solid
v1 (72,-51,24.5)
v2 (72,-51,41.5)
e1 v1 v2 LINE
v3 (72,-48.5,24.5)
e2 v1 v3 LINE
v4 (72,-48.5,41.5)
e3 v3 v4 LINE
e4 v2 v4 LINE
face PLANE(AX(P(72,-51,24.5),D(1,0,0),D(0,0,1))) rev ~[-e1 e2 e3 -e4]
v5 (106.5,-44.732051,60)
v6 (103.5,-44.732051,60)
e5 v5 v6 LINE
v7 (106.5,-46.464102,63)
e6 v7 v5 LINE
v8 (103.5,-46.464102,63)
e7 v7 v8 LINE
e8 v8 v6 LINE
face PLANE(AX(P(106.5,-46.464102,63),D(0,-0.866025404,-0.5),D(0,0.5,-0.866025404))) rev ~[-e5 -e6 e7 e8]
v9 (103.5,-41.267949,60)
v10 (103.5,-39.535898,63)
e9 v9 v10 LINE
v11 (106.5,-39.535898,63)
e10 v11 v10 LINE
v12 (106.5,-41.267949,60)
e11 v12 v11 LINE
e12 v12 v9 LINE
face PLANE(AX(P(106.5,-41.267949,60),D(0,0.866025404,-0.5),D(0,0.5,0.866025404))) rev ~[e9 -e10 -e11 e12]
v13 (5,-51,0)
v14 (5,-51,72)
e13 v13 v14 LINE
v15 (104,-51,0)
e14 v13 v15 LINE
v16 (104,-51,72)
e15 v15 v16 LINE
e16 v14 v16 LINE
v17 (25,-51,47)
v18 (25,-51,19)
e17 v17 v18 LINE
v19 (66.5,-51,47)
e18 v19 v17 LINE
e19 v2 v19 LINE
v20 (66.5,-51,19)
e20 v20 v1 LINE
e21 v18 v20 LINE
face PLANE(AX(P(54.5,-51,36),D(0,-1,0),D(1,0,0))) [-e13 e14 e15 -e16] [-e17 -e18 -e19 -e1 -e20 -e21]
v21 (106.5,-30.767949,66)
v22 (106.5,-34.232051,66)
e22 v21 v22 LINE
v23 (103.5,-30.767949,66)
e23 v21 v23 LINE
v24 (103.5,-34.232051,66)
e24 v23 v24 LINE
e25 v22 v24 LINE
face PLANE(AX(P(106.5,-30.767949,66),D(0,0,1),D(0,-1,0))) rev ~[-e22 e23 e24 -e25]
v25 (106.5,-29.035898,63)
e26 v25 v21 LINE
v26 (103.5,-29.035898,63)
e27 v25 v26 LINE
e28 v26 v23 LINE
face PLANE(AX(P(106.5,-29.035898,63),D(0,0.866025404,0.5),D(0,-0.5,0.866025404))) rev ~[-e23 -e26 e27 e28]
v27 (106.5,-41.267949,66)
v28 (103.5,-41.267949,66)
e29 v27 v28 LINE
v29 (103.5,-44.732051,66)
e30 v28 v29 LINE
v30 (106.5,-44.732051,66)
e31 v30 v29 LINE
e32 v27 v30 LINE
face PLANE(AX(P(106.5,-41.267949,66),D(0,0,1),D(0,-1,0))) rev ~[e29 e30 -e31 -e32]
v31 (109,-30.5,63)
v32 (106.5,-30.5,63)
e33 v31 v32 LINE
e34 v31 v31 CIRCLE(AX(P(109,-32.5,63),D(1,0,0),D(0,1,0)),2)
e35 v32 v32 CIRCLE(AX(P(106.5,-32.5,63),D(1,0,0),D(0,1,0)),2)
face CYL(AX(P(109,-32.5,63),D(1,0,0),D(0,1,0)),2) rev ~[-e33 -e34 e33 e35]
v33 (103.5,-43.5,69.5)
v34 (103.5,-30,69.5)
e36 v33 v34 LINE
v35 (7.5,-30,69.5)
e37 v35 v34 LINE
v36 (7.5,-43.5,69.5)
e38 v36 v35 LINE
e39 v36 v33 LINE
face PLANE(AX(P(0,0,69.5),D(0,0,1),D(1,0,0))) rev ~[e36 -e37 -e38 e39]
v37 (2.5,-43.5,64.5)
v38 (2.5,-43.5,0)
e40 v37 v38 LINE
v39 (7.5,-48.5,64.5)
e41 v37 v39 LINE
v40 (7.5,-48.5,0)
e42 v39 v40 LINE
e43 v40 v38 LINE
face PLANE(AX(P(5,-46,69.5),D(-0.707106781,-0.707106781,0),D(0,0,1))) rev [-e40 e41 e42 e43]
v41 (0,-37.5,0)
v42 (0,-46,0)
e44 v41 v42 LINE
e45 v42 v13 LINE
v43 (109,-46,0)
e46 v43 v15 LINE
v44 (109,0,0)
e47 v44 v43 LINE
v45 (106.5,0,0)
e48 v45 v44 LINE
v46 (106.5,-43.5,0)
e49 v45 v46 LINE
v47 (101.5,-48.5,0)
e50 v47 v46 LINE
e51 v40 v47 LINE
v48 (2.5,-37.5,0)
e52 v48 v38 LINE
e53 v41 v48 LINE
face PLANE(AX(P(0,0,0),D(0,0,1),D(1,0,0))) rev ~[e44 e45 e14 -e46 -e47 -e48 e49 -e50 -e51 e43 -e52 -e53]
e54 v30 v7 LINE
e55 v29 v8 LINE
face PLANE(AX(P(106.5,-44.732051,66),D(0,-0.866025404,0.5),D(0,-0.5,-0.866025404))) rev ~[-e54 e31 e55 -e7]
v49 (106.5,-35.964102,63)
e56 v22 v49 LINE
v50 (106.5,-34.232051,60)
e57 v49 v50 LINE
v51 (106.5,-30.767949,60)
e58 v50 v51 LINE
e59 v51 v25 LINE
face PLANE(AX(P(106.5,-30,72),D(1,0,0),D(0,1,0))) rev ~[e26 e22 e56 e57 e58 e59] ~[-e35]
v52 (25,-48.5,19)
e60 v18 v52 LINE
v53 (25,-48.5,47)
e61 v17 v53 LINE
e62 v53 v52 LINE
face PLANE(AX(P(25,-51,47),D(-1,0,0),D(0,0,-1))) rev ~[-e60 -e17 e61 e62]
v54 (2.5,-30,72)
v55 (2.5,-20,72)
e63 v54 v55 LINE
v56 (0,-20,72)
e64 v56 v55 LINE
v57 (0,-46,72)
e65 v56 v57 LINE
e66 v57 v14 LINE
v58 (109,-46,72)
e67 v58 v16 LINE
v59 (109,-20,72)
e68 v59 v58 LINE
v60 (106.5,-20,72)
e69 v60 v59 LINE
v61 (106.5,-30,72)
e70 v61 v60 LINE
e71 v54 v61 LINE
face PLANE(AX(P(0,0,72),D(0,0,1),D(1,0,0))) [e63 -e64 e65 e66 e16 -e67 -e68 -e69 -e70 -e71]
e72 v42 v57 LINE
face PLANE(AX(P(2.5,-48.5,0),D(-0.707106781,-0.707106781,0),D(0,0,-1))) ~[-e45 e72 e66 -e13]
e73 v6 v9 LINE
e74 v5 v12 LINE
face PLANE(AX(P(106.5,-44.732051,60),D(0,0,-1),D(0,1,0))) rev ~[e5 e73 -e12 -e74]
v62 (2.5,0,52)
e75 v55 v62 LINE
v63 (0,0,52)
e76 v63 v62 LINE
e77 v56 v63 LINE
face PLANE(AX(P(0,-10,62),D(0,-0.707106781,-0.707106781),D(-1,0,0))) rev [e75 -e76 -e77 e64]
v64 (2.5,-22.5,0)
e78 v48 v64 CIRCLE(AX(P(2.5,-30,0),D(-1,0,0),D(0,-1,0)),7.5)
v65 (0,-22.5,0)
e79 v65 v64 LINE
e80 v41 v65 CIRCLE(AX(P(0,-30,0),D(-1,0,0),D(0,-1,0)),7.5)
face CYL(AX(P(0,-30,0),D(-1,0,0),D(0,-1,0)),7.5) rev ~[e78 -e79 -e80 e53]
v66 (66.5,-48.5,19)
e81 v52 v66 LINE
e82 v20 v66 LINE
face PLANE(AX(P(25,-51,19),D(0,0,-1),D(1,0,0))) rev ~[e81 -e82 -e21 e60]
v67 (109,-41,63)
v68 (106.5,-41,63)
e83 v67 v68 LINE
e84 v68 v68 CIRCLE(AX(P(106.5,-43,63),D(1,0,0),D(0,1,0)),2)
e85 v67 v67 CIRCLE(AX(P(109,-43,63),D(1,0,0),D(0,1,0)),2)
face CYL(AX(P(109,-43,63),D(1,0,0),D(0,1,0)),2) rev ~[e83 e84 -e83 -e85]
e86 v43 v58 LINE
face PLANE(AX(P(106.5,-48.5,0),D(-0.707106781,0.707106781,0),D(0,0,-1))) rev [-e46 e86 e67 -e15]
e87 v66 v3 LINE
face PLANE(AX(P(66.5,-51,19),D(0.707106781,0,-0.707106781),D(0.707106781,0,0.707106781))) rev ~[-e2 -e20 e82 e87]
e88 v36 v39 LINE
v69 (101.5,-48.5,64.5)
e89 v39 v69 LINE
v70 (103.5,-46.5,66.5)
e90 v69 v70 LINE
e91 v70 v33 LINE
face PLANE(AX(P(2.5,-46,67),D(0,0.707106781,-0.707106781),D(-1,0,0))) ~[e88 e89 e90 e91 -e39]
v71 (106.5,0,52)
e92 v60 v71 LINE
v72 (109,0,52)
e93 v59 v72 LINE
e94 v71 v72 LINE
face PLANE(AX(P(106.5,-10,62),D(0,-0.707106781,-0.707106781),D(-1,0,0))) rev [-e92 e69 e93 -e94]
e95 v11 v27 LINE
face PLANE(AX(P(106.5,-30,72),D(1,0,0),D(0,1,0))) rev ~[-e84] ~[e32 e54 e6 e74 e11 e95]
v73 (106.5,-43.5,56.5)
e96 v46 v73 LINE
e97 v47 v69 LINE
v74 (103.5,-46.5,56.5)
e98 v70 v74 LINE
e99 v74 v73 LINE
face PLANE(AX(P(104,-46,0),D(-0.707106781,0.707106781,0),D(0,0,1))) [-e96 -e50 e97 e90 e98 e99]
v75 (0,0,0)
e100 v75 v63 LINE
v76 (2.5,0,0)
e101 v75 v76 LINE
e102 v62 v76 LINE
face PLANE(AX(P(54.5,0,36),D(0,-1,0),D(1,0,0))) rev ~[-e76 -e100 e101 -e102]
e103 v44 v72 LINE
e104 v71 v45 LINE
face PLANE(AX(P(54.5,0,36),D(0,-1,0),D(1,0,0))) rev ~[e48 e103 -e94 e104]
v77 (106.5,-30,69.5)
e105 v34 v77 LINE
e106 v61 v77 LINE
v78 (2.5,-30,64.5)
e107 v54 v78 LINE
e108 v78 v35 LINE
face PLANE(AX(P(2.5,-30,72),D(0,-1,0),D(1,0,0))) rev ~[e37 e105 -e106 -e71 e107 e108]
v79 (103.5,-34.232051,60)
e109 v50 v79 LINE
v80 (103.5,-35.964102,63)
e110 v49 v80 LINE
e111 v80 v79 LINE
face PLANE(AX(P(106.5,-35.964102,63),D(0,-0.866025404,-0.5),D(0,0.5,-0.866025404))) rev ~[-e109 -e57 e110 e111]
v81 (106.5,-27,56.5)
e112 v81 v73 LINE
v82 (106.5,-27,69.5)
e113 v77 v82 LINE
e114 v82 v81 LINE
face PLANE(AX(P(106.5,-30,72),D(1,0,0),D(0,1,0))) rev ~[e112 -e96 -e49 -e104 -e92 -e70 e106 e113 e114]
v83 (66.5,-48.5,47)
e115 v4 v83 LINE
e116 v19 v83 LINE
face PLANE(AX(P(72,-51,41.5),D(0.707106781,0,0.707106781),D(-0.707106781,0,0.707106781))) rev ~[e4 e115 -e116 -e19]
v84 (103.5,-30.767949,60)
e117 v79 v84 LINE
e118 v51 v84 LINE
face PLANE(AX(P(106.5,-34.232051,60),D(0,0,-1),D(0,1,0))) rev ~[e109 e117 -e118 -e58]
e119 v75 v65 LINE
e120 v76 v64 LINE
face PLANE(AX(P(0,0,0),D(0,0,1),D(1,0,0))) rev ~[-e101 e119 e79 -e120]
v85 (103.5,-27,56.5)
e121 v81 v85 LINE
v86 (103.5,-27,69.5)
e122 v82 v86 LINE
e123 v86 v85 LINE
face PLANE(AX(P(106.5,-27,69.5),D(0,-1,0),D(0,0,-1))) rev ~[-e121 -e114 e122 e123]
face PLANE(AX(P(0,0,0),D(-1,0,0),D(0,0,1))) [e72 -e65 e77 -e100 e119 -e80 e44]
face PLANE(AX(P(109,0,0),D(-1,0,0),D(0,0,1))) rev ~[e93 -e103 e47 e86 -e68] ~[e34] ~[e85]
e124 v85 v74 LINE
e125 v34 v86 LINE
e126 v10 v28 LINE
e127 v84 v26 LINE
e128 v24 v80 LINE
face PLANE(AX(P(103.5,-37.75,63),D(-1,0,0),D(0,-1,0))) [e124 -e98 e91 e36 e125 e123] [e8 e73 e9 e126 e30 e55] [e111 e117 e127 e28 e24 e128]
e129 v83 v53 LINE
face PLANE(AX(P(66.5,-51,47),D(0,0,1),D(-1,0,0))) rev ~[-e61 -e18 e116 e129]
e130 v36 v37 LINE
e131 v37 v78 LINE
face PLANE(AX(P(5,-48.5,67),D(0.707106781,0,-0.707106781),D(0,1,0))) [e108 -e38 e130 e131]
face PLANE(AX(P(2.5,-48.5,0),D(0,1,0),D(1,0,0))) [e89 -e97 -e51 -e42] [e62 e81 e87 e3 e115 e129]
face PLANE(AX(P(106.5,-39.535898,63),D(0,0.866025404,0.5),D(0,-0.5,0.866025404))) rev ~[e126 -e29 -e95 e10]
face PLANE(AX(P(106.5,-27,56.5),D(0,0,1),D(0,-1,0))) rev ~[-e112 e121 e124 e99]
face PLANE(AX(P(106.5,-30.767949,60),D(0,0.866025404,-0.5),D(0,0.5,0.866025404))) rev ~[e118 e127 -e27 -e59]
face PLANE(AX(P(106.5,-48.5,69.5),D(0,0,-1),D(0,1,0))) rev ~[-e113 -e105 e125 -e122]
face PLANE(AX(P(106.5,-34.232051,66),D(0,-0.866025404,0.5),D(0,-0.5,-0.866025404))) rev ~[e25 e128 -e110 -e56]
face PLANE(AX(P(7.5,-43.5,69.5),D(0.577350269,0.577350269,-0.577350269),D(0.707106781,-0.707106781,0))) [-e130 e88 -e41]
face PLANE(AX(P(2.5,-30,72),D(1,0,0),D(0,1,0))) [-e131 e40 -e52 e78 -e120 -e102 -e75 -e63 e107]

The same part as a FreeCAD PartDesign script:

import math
import FreeCAD as App
import Part
import Sketcher

V = App.Vector
Q = App.Units.Quantity


def edges_at(feature, points):
    """Names of the edges that pass closest to the given points."""
    edges = feature.Shape.Edges
    near = lambda p: min(range(len(edges)), key=lambda i: edges[i].distToShape(Part.Vertex(*p))[0])
    return sorted({f"Edge{near(p) + 1}" for p in points})


def faces_at(feature, points):
    """Names of the faces that lie closest to the given points."""
    faces = feature.Shape.Faces
    near = lambda p: min(range(len(faces)), key=lambda i: faces[i].distToShape(Part.Vertex(*p))[0])
    return sorted({f"Face{near(p) + 1}" for p in points})


def add_polygon(sketch, points):
    """Adds a closed chain of lines whose ends are joined by coincident constraints."""
    first, n = sketch.GeometryCount, len(points)
    for a, b in zip(points, points[1:] + points[:1]):
        sketch.addGeometry(Part.LineSegment(App.Vector(*a, 0), App.Vector(*b, 0)), False)
    for i in range(n):
        sketch.addConstraint(Sketcher.Constraint("Coincident", first + i, 2, first + (i + 1) % n, 1))

doc = App.newDocument("Part")
body = doc.addObject("PartDesign::Body", "Body")

sketch1 = body.newObject("Sketcher::SketchObject", "Sketch")
sketch1.AttachmentSupport = (doc.getObject("XZ_Plane"), [""])
sketch1.MapMode = "FlatFace"
add_polygon(sketch1, [(0, 72), (0, 0), (109, 0), (109, 72)])
sketch1.addConstraint(Sketcher.Constraint("Vertical", 0))
sketch1.addConstraint(Sketcher.Constraint("Horizontal", 1))
sketch1.addConstraint(Sketcher.Constraint("Vertical", 2))
sketch1.addConstraint(Sketcher.Constraint("Horizontal", 3))
sketch1.addConstraint(Sketcher.Constraint("Coincident", 0, 2, -1, 1))
sketch1.addConstraint(Sketcher.Constraint("DistanceX", 1, 1, 1, 2, 109.0))
sketch1.addConstraint(Sketcher.Constraint("DistanceY", 0, 2, 0, 1, 72.0))
pad1 = body.newObject("PartDesign::Pad", "Pad")
pad1.Profile = sketch1
pad1.Length = 51
doc.recompute()

thickness = body.newObject("PartDesign::Thickness", "Thickness")
thickness.Base = (pad1, faces_at(pad1, [(54.5, 0, 36)]))
thickness.Value = 2.5
thickness.Reversed = True
thickness.Join = "Arc"

sketch2 = body.newObject("Sketcher::SketchObject", "Sketch001")
sketch2.AttachmentSupport = (doc.getObject("XY_Plane"), [""])
sketch2.MapMode = "FlatFace"
sketch2.AttachmentOffset = App.Placement(V(0, 0, 72), App.Rotation())
add_polygon(sketch2, [(2, 0), (2, -30), (106, -30), (106, 0)])
sketch2.addConstraint(Sketcher.Constraint("Vertical", 0))
sketch2.addConstraint(Sketcher.Constraint("Horizontal", 1))
sketch2.addConstraint(Sketcher.Constraint("Vertical", 2))
sketch2.addConstraint(Sketcher.Constraint("Horizontal", 3))
sketch2.addConstraint(Sketcher.Constraint("PointOnObject", 2, 2, -1))
sketch2.addConstraint(Sketcher.Constraint("DistanceX", 1, 1, 1, 2, 104.0))
sketch2.addConstraint(Sketcher.Constraint("DistanceY", 0, 2, 0, 1, 30.0))
sketch2.addConstraint(Sketcher.Constraint("DistanceX", -1, 1, 0, 2, 2.5))
pocket1 = body.newObject("PartDesign::Pocket", "Pocket")
pocket1.Profile = sketch2
pocket1.Length = 2.5

sketch3 = body.newObject("Sketcher::SketchObject", "Sketch002")
sketch3.AttachmentSupport = (doc.getObject("YZ_Plane"), [""])
sketch3.MapMode = "FlatFace"
sketch3.AttachmentOffset = App.Placement(V(0, 0, 109), App.Rotation())
sketch3.addGeometry(Part.Circle(V(-43, 63, 0), V(0, 0, 1), 2), False)
sketch3.addGeometry(Part.Circle(V(-32.5, 63, 0), V(0, 0, 1), 2), False)
sketch3.addConstraint(Sketcher.Constraint("Equal", 0, 1))
sketch3.addConstraint(Sketcher.Constraint("Horizontal", 0, 3, 1, 3))
sketch3.addConstraint(Sketcher.Constraint("Diameter", 0, 4.0))
sketch3.addConstraint(Sketcher.Constraint("DistanceX", 0, 3, -1, 1, 43.0))
sketch3.addConstraint(Sketcher.Constraint("DistanceY", -1, 1, 0, 3, 63.0))
sketch3.addConstraint(Sketcher.Constraint("DistanceX", 1, 3, -1, 1, 32.5))
pocket2 = body.newObject("PartDesign::Pocket", "Pocket001")
pocket2.Profile = sketch3
pocket2.Length = 2.5
doc.recompute()

chamfer = body.newObject("PartDesign::Chamfer", "Chamfer")
chamfer.Base = (pocket2, edges_at(pocket2, [(107.75, 0, 72), (1.25, 0, 72)]))
chamfer.Size = 20

sketch4 = body.newObject("Sketcher::SketchObject", "Sketch003")
sketch4.AttachmentSupport = (doc.getObject("XY_Plane"), [""])
sketch4.MapMode = "FlatFace"
add_polygon(sketch4, [(2, -48), (2, 0), (106, 0), (106, -48)])
sketch4.addConstraint(Sketcher.Constraint("Vertical", 0))
sketch4.addConstraint(Sketcher.Constraint("Horizontal", 1))
sketch4.addConstraint(Sketcher.Constraint("Vertical", 2))
sketch4.addConstraint(Sketcher.Constraint("Horizontal", 3))
sketch4.addConstraint(Sketcher.Constraint("PointOnObject", 0, 2, -1))
sketch4.addConstraint(Sketcher.Constraint("DistanceX", 1, 1, 1, 2, 104.0))
sketch4.addConstraint(Sketcher.Constraint("DistanceY", 0, 1, 0, 2, 48.5))
sketch4.addConstraint(Sketcher.Constraint("DistanceX", -1, 1, 0, 2, 2.5))
pocket3 = body.newObject("PartDesign::Pocket", "Pocket002")
pocket3.Profile = sketch4
pocket3.Length = 2.5
pocket3.Reversed = True

sketch5 = body.newObject("Sketcher::SketchObject", "Sketch004")
sketch5.AttachmentSupport = (doc.getObject("YZ_Plane"), [""])
sketch5.MapMode = "FlatFace"
sketch5.addGeometry(Part.LineSegment(V(-22, 0, 0), V(-38, 0, 0)), False)
sketch5.addGeometry(Part.ArcOfCircle(Part.Circle(V(-30, 0, 0), V(0, 0, 1), 8), math.radians(0), math.radians(180)), False)
sketch5.addConstraint(Sketcher.Constraint("Coincident", 0, 1, 1, 1))
sketch5.addConstraint(Sketcher.Constraint("Coincident", 1, 2, 0, 2))
sketch5.addConstraint(Sketcher.Constraint("Horizontal", 0))
sketch5.addConstraint(Sketcher.Constraint("PointOnObject", 1, 3, -1))
sketch5.addConstraint(Sketcher.Constraint("PointOnObject", 0, 1, -1))
sketch5.addConstraint(Sketcher.Constraint("Radius", 1, 7.5))
sketch5.addConstraint(Sketcher.Constraint("DistanceX", 1, 3, -1, 1, 30.0))
pocket4 = body.newObject("PartDesign::Pocket", "Pocket003")
pocket4.Profile = sketch5
pocket4.Length = 2.5
pocket4.Reversed = True

sketch6 = body.newObject("Sketcher::SketchObject", "Sketch005")
sketch6.AttachmentSupport = (doc.getObject("YZ_Plane"), [""])
sketch6.MapMode = "FlatFace"
sketch6.AttachmentOffset = App.Placement(V(0, 0, 106.5), App.Rotation())
add_polygon(sketch6, [(-48.5, 56.5), (-48.5, 69.5), (-27, 69.5), (-27, 56.5)])
add_polygon(sketch6, [(-30.8, 60), (-29, 63), (-30.8, 66), (-34.2, 66), (-36, 63), (-34.2, 60)])
add_polygon(sketch6, [(-41.3, 60), (-39.5, 63), (-41.3, 66), (-44.7, 66), (-46.5, 63), (-44.7, 60)])
sketch6.addConstraint(Sketcher.Constraint("Vertical", 0))
sketch6.addConstraint(Sketcher.Constraint("Horizontal", 1))
sketch6.addConstraint(Sketcher.Constraint("Vertical", 2))
sketch6.addConstraint(Sketcher.Constraint("Horizontal", 3))
sketch6.addConstraint(Sketcher.Constraint("Horizontal", 6))
sketch6.addConstraint(Sketcher.Constraint("Horizontal", 9))
sketch6.addConstraint(Sketcher.Constraint("Horizontal", 12))
sketch6.addConstraint(Sketcher.Constraint("Horizontal", 15))
sketch6.addConstraint(Sketcher.Constraint("Parallel", 4, 7))
sketch6.addConstraint(Sketcher.Constraint("Parallel", 5, 8))
sketch6.addConstraint(Sketcher.Constraint("Parallel", 7, 10))
sketch6.addConstraint(Sketcher.Constraint("Parallel", 8, 11))
sketch6.addConstraint(Sketcher.Constraint("Parallel", 10, 13))
sketch6.addConstraint(Sketcher.Constraint("Parallel", 11, 14))
sketch6.addConstraint(Sketcher.Constraint("Horizontal", 4, 2, 7, 2))
sketch6.addConstraint(Sketcher.Constraint("Horizontal", 7, 2, 10, 2))
sketch6.addConstraint(Sketcher.Constraint("Horizontal", 6, 2, 11, 2))
sketch6.addConstraint(Sketcher.Constraint("Horizontal", 10, 2, 13, 2))
sketch6.addConstraint(Sketcher.Constraint("Horizontal", 9, 2, 14, 2))
sketch6.addConstraint(Sketcher.Constraint("Vertical", 6, 2, 8, 2))
sketch6.addConstraint(Sketcher.Constraint("Vertical", 5, 2, 9, 2))
sketch6.addConstraint(Sketcher.Constraint("Equal", 9, 12))
sketch6.addConstraint(Sketcher.Constraint("DistanceY", 0, 1, 0, 2, 13.0))
sketch6.addConstraint(Sketcher.Constraint("Angle", 4, Q("60 deg")))
sketch6.addConstraint(Sketcher.Constraint("DistanceX", 1, 1, 1, 2, 21.5))
sketch6.addConstraint(Sketcher.Constraint("DistanceX", 1, 2, -1, 1, 27.0))
sketch6.addConstraint(Sketcher.Constraint("DistanceY", -1, 1, 4, 2, 63.0))
sketch6.addConstraint(Sketcher.Constraint("DistanceY", -1, 1, 5, 2, 66.0))
sketch6.addConstraint(Sketcher.Constraint("DistanceY", -1, 1, 0, 2, 69.5))
sketch6.addConstraint(Sketcher.Constraint("DistanceX", 6, 2, 6, 1, 3.464102))
sketch6.addConstraint(Sketcher.Constraint("DistanceX", 4, 2, -1, 1, 29.035898))
sketch6.addConstraint(Sketcher.Constraint("DistanceX", 10, 2, -1, 1, 39.535898))
pad2 = body.newObject("PartDesign::Pad", "Pad001")
pad2.Profile = sketch6
pad2.Length = 3
pad2.Reversed = True

sketch7 = body.newObject("Sketcher::SketchObject", "Sketch006")
sketch7.AttachmentSupport = (doc.getObject("XZ_Plane"), [""])
sketch7.MapMode = "FlatFace"
sketch7.AttachmentOffset = App.Placement(V(0, 0, 51), App.Rotation())
add_polygon(sketch7, [(66, 47), (25, 47), (25, 19), (66, 19), (72, 24), (72, 42)])
sketch7.addConstraint(Sketcher.Constraint("Horizontal", 0))
sketch7.addConstraint(Sketcher.Constraint("Vertical", 1))
sketch7.addConstraint(Sketcher.Constraint("Horizontal", 2))
sketch7.addConstraint(Sketcher.Constraint("Vertical", 4))
sketch7.addConstraint(Sketcher.Constraint("Perpendicular", 3, 5))
sketch7.addConstraint(Sketcher.Constraint("Vertical", 2, 2, 5, 2))
sketch7.addConstraint(Sketcher.Constraint("Equal", 3, 5))
sketch7.addConstraint(Sketcher.Constraint("DistanceY", 1, 2, 1, 1, 28.0))
sketch7.addConstraint(Sketcher.Constraint("DistanceY", 4, 1, 4, 2, 17.0))
sketch7.addConstraint(Sketcher.Constraint("DistanceX", 0, 2, 0, 1, 41.5))
sketch7.addConstraint(Sketcher.Constraint("DistanceX", -1, 1, 0, 2, 25.0))
sketch7.addConstraint(Sketcher.Constraint("DistanceY", -1, 1, 0, 2, 47.0))
pocket5 = body.newObject("PartDesign::Pocket", "Pocket004")
pocket5.Profile = sketch7
pocket5.Type = "ThroughAll"
doc.recompute()

chamfer2 = body.newObject("PartDesign::Chamfer", "Chamfer001")
chamfer2.Base = (pocket5, edges_at(pocket5, [(2.5, -48.5, 34.75), (2.5, -39.25, 69.5), (53, -48.5, 69.5)]))
chamfer2.Size = 5
doc.recompute()

chamfer3 = body.newObject("PartDesign::Chamfer", "Chamfer002")
chamfer3.Base = (chamfer2, edges_at(chamfer2, [(106.5, -48.5, 28.25)]))
chamfer3.Size = 5
doc.recompute()

chamfer4 = body.newObject("PartDesign::Chamfer", "Chamfer003")
chamfer4.Base = (chamfer3, edges_at(chamfer3, [(0, -51, 36), (109, -51, 36)]))
chamfer4.Size = 5

doc.recompute()
